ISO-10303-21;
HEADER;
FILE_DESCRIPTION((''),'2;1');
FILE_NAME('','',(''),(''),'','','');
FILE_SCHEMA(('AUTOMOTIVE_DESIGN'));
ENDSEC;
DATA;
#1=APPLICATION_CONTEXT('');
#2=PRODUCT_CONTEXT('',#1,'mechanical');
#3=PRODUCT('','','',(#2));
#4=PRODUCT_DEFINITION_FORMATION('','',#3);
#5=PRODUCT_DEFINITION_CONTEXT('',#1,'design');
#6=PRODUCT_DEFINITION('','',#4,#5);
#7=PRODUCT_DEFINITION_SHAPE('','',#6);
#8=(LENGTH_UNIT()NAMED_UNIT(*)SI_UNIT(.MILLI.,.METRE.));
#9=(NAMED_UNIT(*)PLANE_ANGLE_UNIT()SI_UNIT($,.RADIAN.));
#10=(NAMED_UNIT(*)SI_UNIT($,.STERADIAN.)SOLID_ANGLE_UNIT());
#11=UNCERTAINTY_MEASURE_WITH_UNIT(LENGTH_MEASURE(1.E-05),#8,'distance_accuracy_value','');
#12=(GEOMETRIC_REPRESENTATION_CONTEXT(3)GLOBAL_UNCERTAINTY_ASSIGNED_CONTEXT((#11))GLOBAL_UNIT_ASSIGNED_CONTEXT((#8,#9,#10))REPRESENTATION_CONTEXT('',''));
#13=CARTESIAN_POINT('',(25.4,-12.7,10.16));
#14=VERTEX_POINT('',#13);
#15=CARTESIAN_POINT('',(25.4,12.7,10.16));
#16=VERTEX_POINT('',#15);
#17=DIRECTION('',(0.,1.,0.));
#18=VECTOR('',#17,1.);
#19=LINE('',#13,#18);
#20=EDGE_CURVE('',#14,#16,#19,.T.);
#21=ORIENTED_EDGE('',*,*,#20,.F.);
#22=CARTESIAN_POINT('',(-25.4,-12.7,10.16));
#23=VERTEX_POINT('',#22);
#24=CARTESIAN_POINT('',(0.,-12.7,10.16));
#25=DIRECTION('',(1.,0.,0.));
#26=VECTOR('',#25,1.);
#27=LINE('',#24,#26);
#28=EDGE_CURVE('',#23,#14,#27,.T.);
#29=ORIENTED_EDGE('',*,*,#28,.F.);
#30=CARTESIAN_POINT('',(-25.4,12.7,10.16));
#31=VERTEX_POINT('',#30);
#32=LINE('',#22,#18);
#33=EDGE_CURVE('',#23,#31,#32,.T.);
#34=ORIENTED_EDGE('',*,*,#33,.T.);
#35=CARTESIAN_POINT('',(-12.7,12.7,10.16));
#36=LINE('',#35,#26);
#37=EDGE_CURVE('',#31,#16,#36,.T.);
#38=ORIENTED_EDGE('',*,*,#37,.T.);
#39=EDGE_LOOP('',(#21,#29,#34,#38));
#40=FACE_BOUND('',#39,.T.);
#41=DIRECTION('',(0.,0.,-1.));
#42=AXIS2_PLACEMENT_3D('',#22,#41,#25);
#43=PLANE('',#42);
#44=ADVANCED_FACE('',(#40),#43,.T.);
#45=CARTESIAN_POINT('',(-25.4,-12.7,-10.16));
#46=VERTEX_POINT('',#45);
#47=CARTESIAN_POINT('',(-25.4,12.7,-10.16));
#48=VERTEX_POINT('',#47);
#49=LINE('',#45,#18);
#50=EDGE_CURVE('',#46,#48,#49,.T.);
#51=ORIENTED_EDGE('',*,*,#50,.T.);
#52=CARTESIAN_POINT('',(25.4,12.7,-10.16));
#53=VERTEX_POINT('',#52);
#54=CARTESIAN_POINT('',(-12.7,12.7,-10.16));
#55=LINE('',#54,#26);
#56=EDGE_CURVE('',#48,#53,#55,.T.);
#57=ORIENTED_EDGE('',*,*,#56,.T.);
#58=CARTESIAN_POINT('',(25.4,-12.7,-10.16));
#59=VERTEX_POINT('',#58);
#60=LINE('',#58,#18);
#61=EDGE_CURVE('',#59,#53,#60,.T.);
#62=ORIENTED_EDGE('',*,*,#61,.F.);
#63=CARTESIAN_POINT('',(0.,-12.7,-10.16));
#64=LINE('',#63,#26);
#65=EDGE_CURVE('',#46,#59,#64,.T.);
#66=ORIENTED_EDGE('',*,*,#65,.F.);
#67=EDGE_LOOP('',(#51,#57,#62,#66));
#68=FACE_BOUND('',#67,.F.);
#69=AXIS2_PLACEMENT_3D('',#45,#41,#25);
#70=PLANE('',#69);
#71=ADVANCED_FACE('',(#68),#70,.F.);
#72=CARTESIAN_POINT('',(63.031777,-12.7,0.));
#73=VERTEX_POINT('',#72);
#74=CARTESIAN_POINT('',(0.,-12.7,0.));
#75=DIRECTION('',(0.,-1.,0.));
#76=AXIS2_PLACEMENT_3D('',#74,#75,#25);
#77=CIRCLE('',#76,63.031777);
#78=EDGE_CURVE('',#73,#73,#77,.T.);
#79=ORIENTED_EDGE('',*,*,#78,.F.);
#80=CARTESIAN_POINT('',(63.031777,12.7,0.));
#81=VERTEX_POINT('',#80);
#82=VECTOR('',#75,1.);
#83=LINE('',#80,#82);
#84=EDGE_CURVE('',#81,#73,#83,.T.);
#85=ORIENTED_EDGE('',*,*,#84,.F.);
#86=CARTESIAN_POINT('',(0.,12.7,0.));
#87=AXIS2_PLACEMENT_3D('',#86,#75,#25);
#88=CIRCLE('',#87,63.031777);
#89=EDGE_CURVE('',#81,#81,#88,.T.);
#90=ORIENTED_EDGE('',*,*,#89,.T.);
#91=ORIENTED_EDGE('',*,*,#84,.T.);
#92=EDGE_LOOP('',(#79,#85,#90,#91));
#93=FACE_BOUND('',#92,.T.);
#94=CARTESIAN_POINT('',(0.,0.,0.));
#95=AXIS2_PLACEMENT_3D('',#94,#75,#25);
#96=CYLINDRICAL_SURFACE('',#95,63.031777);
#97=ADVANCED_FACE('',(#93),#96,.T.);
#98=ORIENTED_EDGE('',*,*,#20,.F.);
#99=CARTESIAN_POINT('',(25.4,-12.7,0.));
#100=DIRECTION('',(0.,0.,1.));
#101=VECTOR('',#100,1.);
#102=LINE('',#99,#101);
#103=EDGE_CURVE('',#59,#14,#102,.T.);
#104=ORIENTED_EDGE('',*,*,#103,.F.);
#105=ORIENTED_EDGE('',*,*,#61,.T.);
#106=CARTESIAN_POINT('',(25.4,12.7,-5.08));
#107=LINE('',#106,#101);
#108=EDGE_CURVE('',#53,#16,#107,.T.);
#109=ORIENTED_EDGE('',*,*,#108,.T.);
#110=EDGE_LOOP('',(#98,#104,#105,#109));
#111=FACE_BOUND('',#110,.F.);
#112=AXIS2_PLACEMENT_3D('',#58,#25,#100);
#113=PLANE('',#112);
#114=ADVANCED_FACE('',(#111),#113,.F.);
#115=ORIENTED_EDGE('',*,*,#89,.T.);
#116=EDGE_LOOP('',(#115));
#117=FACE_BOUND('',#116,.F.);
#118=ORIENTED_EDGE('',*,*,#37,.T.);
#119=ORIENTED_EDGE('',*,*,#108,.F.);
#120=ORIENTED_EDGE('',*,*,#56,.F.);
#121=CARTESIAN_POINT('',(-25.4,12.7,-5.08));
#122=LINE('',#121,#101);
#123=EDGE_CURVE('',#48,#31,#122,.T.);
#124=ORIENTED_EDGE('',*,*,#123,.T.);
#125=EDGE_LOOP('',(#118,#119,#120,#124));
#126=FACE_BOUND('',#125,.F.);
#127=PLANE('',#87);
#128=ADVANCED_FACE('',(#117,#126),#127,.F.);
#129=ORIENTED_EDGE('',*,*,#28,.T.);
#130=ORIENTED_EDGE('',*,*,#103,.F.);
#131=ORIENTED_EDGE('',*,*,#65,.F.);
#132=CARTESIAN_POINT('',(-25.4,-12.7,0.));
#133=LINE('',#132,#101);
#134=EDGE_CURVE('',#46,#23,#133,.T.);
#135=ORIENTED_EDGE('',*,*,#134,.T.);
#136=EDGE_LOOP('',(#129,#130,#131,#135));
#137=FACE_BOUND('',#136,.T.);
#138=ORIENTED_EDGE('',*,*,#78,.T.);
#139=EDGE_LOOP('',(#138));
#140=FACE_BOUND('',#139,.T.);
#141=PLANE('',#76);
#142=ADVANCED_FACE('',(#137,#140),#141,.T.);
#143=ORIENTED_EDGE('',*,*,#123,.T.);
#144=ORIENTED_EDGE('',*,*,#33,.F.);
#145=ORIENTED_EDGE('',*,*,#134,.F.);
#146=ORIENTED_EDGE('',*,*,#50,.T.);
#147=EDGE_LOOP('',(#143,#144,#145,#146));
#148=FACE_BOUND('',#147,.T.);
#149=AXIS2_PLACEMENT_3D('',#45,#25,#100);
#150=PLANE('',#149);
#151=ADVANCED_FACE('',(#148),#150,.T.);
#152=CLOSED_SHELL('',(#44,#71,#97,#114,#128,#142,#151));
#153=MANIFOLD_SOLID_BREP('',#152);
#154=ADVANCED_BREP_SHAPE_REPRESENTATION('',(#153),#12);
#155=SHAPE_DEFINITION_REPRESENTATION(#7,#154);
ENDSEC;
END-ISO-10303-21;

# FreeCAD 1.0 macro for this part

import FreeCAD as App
import Part
import Sketcher
from FreeCAD import Vector
Q = App.Units.Quantity


def add_polygon(sketch, points):
    """Adds a closed chain of lines whose ends are joined by coincident constraints."""
    first, n = sketch.GeometryCount, len(points)
    for a, b in zip(points, points[1:] + points[:1]):
        sketch.addGeometry(Part.LineSegment(App.Vector(*a, 0), App.Vector(*b, 0)), False)
    for i in range(n):
        sketch.addConstraint(Sketcher.Constraint("Coincident", first + i, 2, first + (i + 1) % n, 1))

doc = App.newDocument("Part")
body = doc.addObject("PartDesign::Body", "Body")

# Sketch on XZ plane
sketch1 = body.newObject("Sketcher::SketchObject", "Sketch")
sketch1.AttachmentSupport = (doc.getObject("XZ_Plane"), [""])
sketch1.MapMode = "FlatFace"
sketch1.addGeometry(Part.Circle(Vector(0, 0, 0), Vector(0, 0, 1), 63), False)
sketch1.addConstraint([
    Sketcher.Constraint("Coincident", 0, 3, -1, 1),
    Sketcher.Constraint("Diameter", 0, Q("126.063554 mm")),
])
pad1 = body.newObject("PartDesign::Pad", "Pad")
pad1.Profile = sketch1
pad1.Length = Q("1 in")
pad1.Midplane = True

# Sketch on XZ plane
sketch2 = body.newObject("Sketcher::SketchObject", "Sketch001")
sketch2.AttachmentSupport = (doc.getObject("XZ_Plane"), [""])
sketch2.MapMode = "FlatFace"
sketch2.AttachmentOffset = App.Placement(Vector(0, 0, 0.5 * 25.4), App.Rotation())
add_polygon(sketch2, [(-25, 10), (-25, -10), (25, -10), (25, 10)])  # lines 0-3
sketch2.addConstraint([
    Sketcher.Constraint("Vertical", 0),
    Sketcher.Constraint("Horizontal", 1),
    Sketcher.Constraint("Vertical", 2),
    Sketcher.Constraint("Horizontal", 3),
    Sketcher.Constraint("Symmetric", 0, 2, 2, 2, -1, 1),
    Sketcher.Constraint("DistanceX", 1, 1, 1, 2, Q("2 in")),
    Sketcher.Constraint("DistanceY", 0, 2, 0, 1, Q("0.8 in")),
])
pocket1 = body.newObject("PartDesign::Pocket", "Pocket")
pocket1.Profile = sketch2
pocket1.Type = "ThroughAll"

doc.recompute()
